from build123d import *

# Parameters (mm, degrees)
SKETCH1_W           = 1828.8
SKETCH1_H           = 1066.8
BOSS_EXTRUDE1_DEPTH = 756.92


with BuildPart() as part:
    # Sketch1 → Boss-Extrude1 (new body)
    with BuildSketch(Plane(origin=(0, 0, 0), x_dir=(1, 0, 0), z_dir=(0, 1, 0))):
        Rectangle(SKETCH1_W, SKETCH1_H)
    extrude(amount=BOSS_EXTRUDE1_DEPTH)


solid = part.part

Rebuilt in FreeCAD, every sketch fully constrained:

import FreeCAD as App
import Part
import Sketcher

V = App.Vector
Q = App.Units.Quantity

doc = App.newDocument("Part")
body = doc.addObject("PartDesign::Body", "Body")

# Sketch on XZ plane
sketch1 = body.newObject("Sketcher::SketchObject", "Sketch")
sketch1.AttachmentSupport = (doc.getObject("XZ_Plane"), [""])
sketch1.MapMode = "FlatFace"
sketch1.addGeometry([
    Part.LineSegment(V(-914, -533, 0), V(-914, 533, 0)),
    Part.LineSegment(V(-914, 533, 0), V(914, 533, 0)),
    Part.LineSegment(V(914, 533, 0), V(914, -533, 0)),
    Part.LineSegment(V(914, -533, 0), V(-914, -533, 0)),
], False)
sketch1.addConstraint([
    Sketcher.Constraint("Coincident", 0, 2, 1, 1),
    Sketcher.Constraint("Coincident", 1, 2, 2, 1),
    Sketcher.Constraint("Coincident", 2, 2, 3, 1),
    Sketcher.Constraint("Coincident", 3, 2, 0, 1),
    Sketcher.Constraint("Vertical", 0),
    Sketcher.Constraint("Horizontal", 1),
    Sketcher.Constraint("Vertical", 2),
    Sketcher.Constraint("Horizontal", 3),
    Sketcher.Constraint("Symmetric", 0, 2, 2, 2, -1, 1),
    Sketcher.Constraint("DistanceX", 1, 1, 1, 2, Q("72 in")),
    Sketcher.Constraint("DistanceY", 0, 1, 0, 2, Q("42 in")),
])
pad1 = body.newObject("PartDesign::Pad", "Pad")
pad1.Profile = sketch1
pad1.Length = Q("29.8 in")
pad1.Reversed = True

doc.recompute()
